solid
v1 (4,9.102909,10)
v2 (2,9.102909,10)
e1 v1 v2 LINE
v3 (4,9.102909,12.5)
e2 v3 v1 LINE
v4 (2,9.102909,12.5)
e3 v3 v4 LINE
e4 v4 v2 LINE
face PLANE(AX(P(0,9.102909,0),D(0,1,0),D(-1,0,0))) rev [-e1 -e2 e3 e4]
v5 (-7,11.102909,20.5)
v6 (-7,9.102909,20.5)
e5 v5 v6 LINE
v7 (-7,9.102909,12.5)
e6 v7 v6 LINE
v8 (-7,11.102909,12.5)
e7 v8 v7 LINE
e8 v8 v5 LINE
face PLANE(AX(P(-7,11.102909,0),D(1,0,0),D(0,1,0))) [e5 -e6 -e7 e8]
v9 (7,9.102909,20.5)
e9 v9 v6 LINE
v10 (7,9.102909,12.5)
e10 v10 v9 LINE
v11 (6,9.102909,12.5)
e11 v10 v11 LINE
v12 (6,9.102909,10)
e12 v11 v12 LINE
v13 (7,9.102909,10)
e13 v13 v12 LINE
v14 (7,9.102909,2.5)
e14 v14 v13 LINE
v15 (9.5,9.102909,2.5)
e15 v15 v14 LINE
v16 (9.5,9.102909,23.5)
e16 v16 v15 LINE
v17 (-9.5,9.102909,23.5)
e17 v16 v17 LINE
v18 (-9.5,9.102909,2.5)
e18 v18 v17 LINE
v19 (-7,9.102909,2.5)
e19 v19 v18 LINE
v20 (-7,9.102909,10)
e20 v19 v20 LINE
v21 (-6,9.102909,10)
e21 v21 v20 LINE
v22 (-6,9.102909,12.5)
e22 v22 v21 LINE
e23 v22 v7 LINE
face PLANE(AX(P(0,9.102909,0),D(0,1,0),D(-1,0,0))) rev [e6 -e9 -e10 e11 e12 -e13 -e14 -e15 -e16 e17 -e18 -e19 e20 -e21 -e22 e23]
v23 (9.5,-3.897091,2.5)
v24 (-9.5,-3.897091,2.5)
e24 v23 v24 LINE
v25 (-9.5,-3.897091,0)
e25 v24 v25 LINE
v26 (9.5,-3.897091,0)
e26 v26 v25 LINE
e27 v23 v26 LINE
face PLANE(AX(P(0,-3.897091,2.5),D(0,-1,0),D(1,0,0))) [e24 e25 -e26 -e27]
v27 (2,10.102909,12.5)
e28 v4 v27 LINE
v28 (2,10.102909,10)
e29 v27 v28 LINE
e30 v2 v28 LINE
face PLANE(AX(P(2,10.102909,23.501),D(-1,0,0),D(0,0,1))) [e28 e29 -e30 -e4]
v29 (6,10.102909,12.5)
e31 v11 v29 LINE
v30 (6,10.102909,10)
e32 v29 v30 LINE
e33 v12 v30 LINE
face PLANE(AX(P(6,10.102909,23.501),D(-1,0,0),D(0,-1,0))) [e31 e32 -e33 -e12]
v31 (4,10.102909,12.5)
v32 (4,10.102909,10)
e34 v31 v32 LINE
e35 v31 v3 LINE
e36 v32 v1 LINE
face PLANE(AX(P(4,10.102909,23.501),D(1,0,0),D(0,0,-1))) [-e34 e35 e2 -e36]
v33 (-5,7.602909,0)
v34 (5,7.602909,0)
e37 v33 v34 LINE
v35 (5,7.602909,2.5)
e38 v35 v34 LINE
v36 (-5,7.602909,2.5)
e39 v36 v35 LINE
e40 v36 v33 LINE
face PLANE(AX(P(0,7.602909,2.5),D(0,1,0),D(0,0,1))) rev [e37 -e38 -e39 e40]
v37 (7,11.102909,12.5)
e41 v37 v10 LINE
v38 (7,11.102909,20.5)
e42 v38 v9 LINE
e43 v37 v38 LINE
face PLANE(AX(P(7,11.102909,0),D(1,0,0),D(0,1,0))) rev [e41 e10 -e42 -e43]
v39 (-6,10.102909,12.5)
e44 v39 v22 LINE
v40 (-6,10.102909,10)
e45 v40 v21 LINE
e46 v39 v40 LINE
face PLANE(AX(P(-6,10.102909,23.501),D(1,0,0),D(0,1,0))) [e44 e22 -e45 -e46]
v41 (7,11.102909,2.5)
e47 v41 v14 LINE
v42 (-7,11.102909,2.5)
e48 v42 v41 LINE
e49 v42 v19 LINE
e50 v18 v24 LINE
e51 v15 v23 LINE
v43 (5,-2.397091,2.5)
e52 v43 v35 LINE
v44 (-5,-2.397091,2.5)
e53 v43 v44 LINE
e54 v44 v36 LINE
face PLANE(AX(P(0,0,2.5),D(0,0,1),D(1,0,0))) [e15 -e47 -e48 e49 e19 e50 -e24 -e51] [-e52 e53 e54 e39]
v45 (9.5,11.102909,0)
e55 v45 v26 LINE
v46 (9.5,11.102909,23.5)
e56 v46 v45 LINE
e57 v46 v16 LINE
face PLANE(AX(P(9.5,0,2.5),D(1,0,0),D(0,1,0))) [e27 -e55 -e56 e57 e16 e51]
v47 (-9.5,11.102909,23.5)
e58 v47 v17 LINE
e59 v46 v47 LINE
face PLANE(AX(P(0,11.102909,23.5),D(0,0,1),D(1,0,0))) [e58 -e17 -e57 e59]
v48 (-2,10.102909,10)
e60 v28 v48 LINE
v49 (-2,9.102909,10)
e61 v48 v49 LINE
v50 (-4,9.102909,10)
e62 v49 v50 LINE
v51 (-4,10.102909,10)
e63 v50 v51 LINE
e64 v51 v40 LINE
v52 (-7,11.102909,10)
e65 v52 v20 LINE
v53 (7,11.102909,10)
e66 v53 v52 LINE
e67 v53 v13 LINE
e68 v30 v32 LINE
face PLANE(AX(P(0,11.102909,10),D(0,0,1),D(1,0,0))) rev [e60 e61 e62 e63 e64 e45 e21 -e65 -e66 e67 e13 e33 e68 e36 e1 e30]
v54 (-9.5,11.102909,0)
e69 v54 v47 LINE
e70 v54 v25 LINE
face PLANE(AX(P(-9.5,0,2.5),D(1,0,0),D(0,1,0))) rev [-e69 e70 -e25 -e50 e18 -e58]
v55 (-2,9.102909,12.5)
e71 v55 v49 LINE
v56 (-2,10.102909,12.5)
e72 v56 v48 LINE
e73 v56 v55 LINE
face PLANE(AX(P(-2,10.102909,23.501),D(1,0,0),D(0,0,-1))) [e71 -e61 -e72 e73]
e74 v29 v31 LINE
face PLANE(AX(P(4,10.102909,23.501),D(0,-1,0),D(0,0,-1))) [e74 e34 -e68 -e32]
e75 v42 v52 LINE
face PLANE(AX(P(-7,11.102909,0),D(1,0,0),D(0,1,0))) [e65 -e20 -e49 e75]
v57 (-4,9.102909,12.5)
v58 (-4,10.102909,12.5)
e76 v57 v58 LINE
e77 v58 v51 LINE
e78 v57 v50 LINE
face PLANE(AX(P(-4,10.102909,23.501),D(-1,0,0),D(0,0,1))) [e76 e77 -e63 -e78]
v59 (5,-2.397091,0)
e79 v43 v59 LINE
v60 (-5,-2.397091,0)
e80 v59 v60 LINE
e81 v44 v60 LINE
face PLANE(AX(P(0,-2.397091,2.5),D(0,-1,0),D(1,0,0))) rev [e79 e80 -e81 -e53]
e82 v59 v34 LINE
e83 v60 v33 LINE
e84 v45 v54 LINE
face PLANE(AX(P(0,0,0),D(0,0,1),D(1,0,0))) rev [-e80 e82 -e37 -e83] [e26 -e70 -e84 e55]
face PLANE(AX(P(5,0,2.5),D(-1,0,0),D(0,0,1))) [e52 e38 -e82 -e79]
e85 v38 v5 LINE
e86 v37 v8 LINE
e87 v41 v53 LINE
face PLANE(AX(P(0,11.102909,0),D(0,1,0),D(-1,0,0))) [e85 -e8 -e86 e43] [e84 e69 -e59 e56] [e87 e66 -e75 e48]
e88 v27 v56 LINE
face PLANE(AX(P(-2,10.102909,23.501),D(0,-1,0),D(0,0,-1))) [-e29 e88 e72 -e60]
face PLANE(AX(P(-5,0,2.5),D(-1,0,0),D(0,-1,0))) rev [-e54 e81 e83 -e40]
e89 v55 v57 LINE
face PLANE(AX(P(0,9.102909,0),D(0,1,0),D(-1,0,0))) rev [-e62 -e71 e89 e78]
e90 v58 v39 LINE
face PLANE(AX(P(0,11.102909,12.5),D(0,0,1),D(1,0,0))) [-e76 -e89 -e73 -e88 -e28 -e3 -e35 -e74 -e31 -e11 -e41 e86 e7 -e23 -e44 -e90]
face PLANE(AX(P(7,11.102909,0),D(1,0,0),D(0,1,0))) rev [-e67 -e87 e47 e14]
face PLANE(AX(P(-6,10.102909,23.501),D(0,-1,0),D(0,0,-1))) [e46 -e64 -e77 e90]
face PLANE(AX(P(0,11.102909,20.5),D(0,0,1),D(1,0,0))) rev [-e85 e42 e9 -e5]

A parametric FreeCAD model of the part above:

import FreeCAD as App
import Part
import Sketcher
from FreeCAD import Vector

doc = App.newDocument("Part")
body = doc.addObject("PartDesign::Body", "Body")

# Sketch on XY plane
sketch1 = body.newObject("Sketcher::SketchObject", "Sketch")
sketch1.AttachmentSupport = (doc.getObject("XY_Plane"), [""])
sketch1.MapMode = "FlatFace"
sketch1.addGeometry(Part.LineSegment(Vector(-10, 9, 0), Vector(-10, -4, 0)), False)
sketch1.addGeometry(Part.LineSegment(Vector(-10, -4, 0), Vector(10, -4, 0)), False)
sketch1.addGeometry(Part.LineSegment(Vector(10, -4, 0), Vector(10, 9, 0)), False)
sketch1.addGeometry(Part.LineSegment(Vector(10, 9, 0), Vector(-10, 9, 0)), False)
sketch1.addGeometry(Part.LineSegment(Vector(5, -2, 0), Vector(-5, -2, 0)), False)
sketch1.addGeometry(Part.LineSegment(Vector(-5, -2, 0), Vector(-5, 8, 0)), False)
sketch1.addGeometry(Part.LineSegment(Vector(-5, 8, 0), Vector(5, 8, 0)), False)
sketch1.addGeometry(Part.LineSegment(Vector(5, 8, 0), Vector(5, -2, 0)), False)
sketch1.addConstraint(Sketcher.Constraint("Coincident", 0, 2, 1, 1))
sketch1.addConstraint(Sketcher.Constraint("Coincident", 1, 2, 2, 1))
sketch1.addConstraint(Sketcher.Constraint("Coincident", 2, 2, 3, 1))
sketch1.addConstraint(Sketcher.Constraint("Coincident", 3, 2, 0, 1))
sketch1.addConstraint(Sketcher.Constraint("Coincident", 4, 2, 5, 1))
sketch1.addConstraint(Sketcher.Constraint("Coincident", 5, 2, 6, 1))
sketch1.addConstraint(Sketcher.Constraint("Coincident", 6, 2, 7, 1))
sketch1.addConstraint(Sketcher.Constraint("Coincident", 7, 2, 4, 1))
sketch1.addConstraint(Sketcher.Constraint("Vertical", 0))
sketch1.addConstraint(Sketcher.Constraint("Horizontal", 1))
sketch1.addConstraint(Sketcher.Constraint("Vertical", 2))
sketch1.addConstraint(Sketcher.Constraint("Horizontal", 3))
sketch1.addConstraint(Sketcher.Constraint("Horizontal", 4))
sketch1.addConstraint(Sketcher.Constraint("Vertical", 5))
sketch1.addConstraint(Sketcher.Constraint("Horizontal", 6))
sketch1.addConstraint(Sketcher.Constraint("Vertical", 7))
sketch1.addConstraint(Sketcher.Constraint("Equal", 6, 5))
sketch1.addConstraint(Sketcher.Constraint("DistanceX", 1, 1, 1, 2, 19.0))
sketch1.addConstraint(Sketcher.Constraint("DistanceX", 4, 2, 4, 1, 10.0))
sketch1.addConstraint(Sketcher.Constraint("DistanceY", 0, 2, 0, 1, 13.0))
sketch1.addConstraint(Sketcher.Constraint("DistanceX", 4, 2, -1, 1, 5.0))
sketch1.addConstraint(Sketcher.Constraint("DistanceX", 0, 2, -1, 1, 9.5))
sketch1.addConstraint(Sketcher.Constraint("DistanceY", 0, 2, 4, 2, 1.5))
sketch1.addConstraint(Sketcher.Constraint("DistanceY", 0, 2, -1, 1, 3.897091))
pad1 = body.newObject("PartDesign::Pad", "Pad")
pad1.Profile = sketch1
pad1.Length = 2.5

# Sketch on XZ plane
sketch2 = body.newObject("Sketcher::SketchObject", "Sketch001")
sketch2.AttachmentSupport = (doc.getObject("XZ_Plane"), [""])
sketch2.MapMode = "FlatFace"
sketch2.AttachmentOffset = App.Placement(Vector(0, 0, -9.102909), App.Rotation())
sketch2.addGeometry(Part.LineSegment(Vector(10, 0, 0), Vector(-10, 0, 0)), False)
sketch2.addGeometry(Part.LineSegment(Vector(-10, 0, 0), Vector(-10, 24, 0)), False)
sketch2.addGeometry(Part.LineSegment(Vector(-10, 24, 0), Vector(10, 24, 0)), False)
sketch2.addGeometry(Part.LineSegment(Vector(10, 24, 0), Vector(10, 0, 0)), False)
sketch2.addGeometry(Part.LineSegment(Vector(-7, 20, 0), Vector(-7, 12, 0)), False)
sketch2.addGeometry(Part.LineSegment(Vector(-7, 12, 0), Vector(7, 12, 0)), False)
sketch2.addGeometry(Part.LineSegment(Vector(7, 12, 0), Vector(7, 20, 0)), False)
sketch2.addGeometry(Part.LineSegment(Vector(7, 20, 0), Vector(-7, 20, 0)), False)
sketch2.addGeometry(Part.LineSegment(Vector(-7, 10, 0), Vector(-7, 2, 0)), False)
sketch2.addGeometry(Part.LineSegment(Vector(-7, 2, 0), Vector(7, 2, 0)), False)
sketch2.addGeometry(Part.LineSegment(Vector(7, 2, 0), Vector(7, 10, 0)), False)
sketch2.addGeometry(Part.LineSegment(Vector(7, 10, 0), Vector(-7, 10, 0)), False)
sketch2.addConstraint(Sketcher.Constraint("Coincident", 0, 2, 1, 1))
sketch2.addConstraint(Sketcher.Constraint("Coincident", 1, 2, 2, 1))
sketch2.addConstraint(Sketcher.Constraint("Coincident", 2, 2, 3, 1))
sketch2.addConstraint(Sketcher.Constraint("Coincident", 3, 2, 0, 1))
sketch2.addConstraint(Sketcher.Constraint("Coincident", 4, 2, 5, 1))
sketch2.addConstraint(Sketcher.Constraint("Coincident", 5, 2, 6, 1))
sketch2.addConstraint(Sketcher.Constraint("Coincident", 6, 2, 7, 1))
sketch2.addConstraint(Sketcher.Constraint("Coincident", 7, 2, 4, 1))
sketch2.addConstraint(Sketcher.Constraint("Coincident", 8, 2, 9, 1))
sketch2.addConstraint(Sketcher.Constraint("Coincident", 9, 2, 10, 1))
sketch2.addConstraint(Sketcher.Constraint("Coincident", 10, 2, 11, 1))
sketch2.addConstraint(Sketcher.Constraint("Coincident", 11, 2, 8, 1))
sketch2.addConstraint(Sketcher.Constraint("Horizontal", 0))
sketch2.addConstraint(Sketcher.Constraint("Vertical", 1))
sketch2.addConstraint(Sketcher.Constraint("Horizontal", 2))
sketch2.addConstraint(Sketcher.Constraint("Vertical", 3))
sketch2.addConstraint(Sketcher.Constraint("Vertical", 4))
sketch2.addConstraint(Sketcher.Constraint("Horizontal", 5))
sketch2.addConstraint(Sketcher.Constraint("Vertical", 6))
sketch2.addConstraint(Sketcher.Constraint("Horizontal", 7))
sketch2.addConstraint(Sketcher.Constraint("Vertical", 8))
sketch2.addConstraint(Sketcher.Constraint("Horizontal", 9))
sketch2.addConstraint(Sketcher.Constraint("Vertical", 10))
sketch2.addConstraint(Sketcher.Constraint("Horizontal", 11))
sketch2.addConstraint(Sketcher.Constraint("Symmetric", 0, 2, 3, 2, -1, 1))
sketch2.addConstraint(Sketcher.Constraint("Vertical", 7, 2, 8, 2))
sketch2.addConstraint(Sketcher.Constraint("Vertical", 6, 2, 9, 2))
sketch2.addConstraint(Sketcher.Constraint("DistanceX", 0, 2, 0, 1, 19.0))
sketch2.addConstraint(Sketcher.Constraint("DistanceX", 5, 1, 5, 2, 14.0))
sketch2.addConstraint(Sketcher.Constraint("DistanceY", 4, 2, 4, 1, 8.0))
sketch2.addConstraint(Sketcher.Constraint("DistanceY", 1, 1, 1, 2, 23.5))
sketch2.addConstraint(Sketcher.Constraint("DistanceY", 8, 2, 8, 1, 7.5))
sketch2.addConstraint(Sketcher.Constraint("DistanceX", 4, 2, -1, 1, 7.0))
sketch2.addConstraint(Sketcher.Constraint("DistanceY", -1, 1, 10, 2, 10.0))
sketch2.addConstraint(Sketcher.Constraint("DistanceY", 4, 2, 1, 2, 11.0))
pad2 = body.newObject("PartDesign::Pad", "Pad001")
pad2.Profile = sketch2
pad2.Length = 2
pad2.Reversed = True

# Sketch on XY plane
sketch3 = body.newObject("Sketcher::SketchObject", "Sketch002")
sketch3.AttachmentSupport = (doc.getObject("XY_Plane"), [""])
sketch3.MapMode = "FlatFace"
sketch3.AttachmentOffset = App.Placement(Vector(0, 0, 2.5), App.Rotation())
sketch3.addGeometry(Part.LineSegment(Vector(-6, 10.1, 0), Vector(-6, 9.1, 0)), False)
sketch3.addGeometry(Part.LineSegment(Vector(-6, 9.1, 0), Vector(-4, 9.1, 0)), False)
sketch3.addGeometry(Part.LineSegment(Vector(-4, 9.1, 0), Vector(-4, 10.1, 0)), False)
sketch3.addGeometry(Part.LineSegment(Vector(-4, 10.1, 0), Vector(-6, 10.1, 0)), False)
sketch3.addConstraint(Sketcher.Constraint("Coincident", 0, 2, 1, 1))
sketch3.addConstraint(Sketcher.Constraint("Coincident", 1, 2, 2, 1))
sketch3.addConstraint(Sketcher.Constraint("Coincident", 2, 2, 3, 1))
sketch3.addConstraint(Sketcher.Constraint("Coincident", 3, 2, 0, 1))
sketch3.addConstraint(Sketcher.Constraint("Vertical", 0))
sketch3.addConstraint(Sketcher.Constraint("Horizontal", 1))
sketch3.addConstraint(Sketcher.Constraint("Vertical", 2))
sketch3.addConstraint(Sketcher.Constraint("Horizontal", 3))
sketch3.addConstraint(Sketcher.Constraint("DistanceX", 1, 1, 1, 2, 2.0))
sketch3.addConstraint(Sketcher.Constraint("DistanceY", 0, 2, 0, 1, 1.0))
sketch3.addConstraint(Sketcher.Constraint("DistanceX", 0, 2, -1, 1, 6.0))
sketch3.addConstraint(Sketcher.Constraint("DistanceY", -1, 1, 0, 2, 9.102909))
pocket1 = body.newObject("PartDesign::Pocket", "Pocket")
pocket1.Profile = sketch3
pocket1.Length = 10
pocket1.Reversed = True

# Sketch on XY plane
sketch4 = body.newObject("Sketcher::SketchObject", "Sketch003")
sketch4.AttachmentSupport = (doc.getObject("XY_Plane"), [""])
sketch4.MapMode = "FlatFace"
sketch4.AttachmentOffset = App.Placement(Vector(0, 0, 2.5), App.Rotation())
sketch4.addGeometry(Part.LineSegment(Vector(4, 10.1, 0), Vector(4, 9.1, 0)), False)
sketch4.addGeometry(Part.LineSegment(Vector(4, 9.1, 0), Vector(6, 9.1, 0)), False)
sketch4.addGeometry(Part.LineSegment(Vector(6, 9.1, 0), Vector(6, 10.1, 0)), False)
sketch4.addGeometry(Part.LineSegment(Vector(6, 10.1, 0), Vector(4, 10.1, 0)), False)
sketch4.addConstraint(Sketcher.Constraint("Coincident", 0, 2, 1, 1))
sketch4.addConstraint(Sketcher.Constraint("Coincident", 1, 2, 2, 1))
sketch4.addConstraint(Sketcher.Constraint("Coincident", 2, 2, 3, 1))
sketch4.addConstraint(Sketcher.Constraint("Coincident", 3, 2, 0, 1))
sketch4.addConstraint(Sketcher.Constraint("Vertical", 0))
sketch4.addConstraint(Sketcher.Constraint("Horizontal", 1))
sketch4.addConstraint(Sketcher.Constraint("Vertical", 2))
sketch4.addConstraint(Sketcher.Constraint("Horizontal", 3))
sketch4.addConstraint(Sketcher.Constraint("DistanceX", 1, 1, 1, 2, 2.0))
sketch4.addConstraint(Sketcher.Constraint("DistanceY", 0, 2, 0, 1, 1.0))
sketch4.addConstraint(Sketcher.Constraint("DistanceX", -1, 1, 0, 2, 4.0))
sketch4.addConstraint(Sketcher.Constraint("DistanceY", -1, 1, 0, 2, 9.102909))
pocket2 = body.newObject("PartDesign::Pocket", "Pocket001")
pocket2.Profile = sketch4
pocket2.Length = 10
pocket2.Reversed = True

# Sketch on XY plane
sketch5 = body.newObject("Sketcher::SketchObject", "Sketch004")
sketch5.AttachmentSupport = (doc.getObject("XY_Plane"), [""])
sketch5.MapMode = "FlatFace"
sketch5.AttachmentOffset = App.Placement(Vector(0, 0, 2.5), App.Rotation())
sketch5.addGeometry(Part.LineSegment(Vector(-2, 10.1, 0), Vector(-2, 9.1, 0)), False)
sketch5.addGeometry(Part.LineSegment(Vector(-2, 9.1, 0), Vector(2, 9.1, 0)), False)
sketch5.addGeometry(Part.LineSegment(Vector(2, 9.1, 0), Vector(2, 10.1, 0)), False)
sketch5.addGeometry(Part.LineSegment(Vector(2, 10.1, 0), Vector(-2, 10.1, 0)), False)
sketch5.addConstraint(Sketcher.Constraint("Coincident", 0, 2, 1, 1))
sketch5.addConstraint(Sketcher.Constraint("Coincident", 1, 2, 2, 1))
sketch5.addConstraint(Sketcher.Constraint("Coincident", 2, 2, 3, 1))
sketch5.addConstraint(Sketcher.Constraint("Coincident", 3, 2, 0, 1))
sketch5.addConstraint(Sketcher.Constraint("Vertical", 0))
sketch5.addConstraint(Sketcher.Constraint("Horizontal", 1))
sketch5.addConstraint(Sketcher.Constraint("Vertical", 2))
sketch5.addConstraint(Sketcher.Constraint("Horizontal", 3))
sketch5.addConstraint(Sketcher.Constraint("DistanceX", 1, 1, 1, 2, 4.0))
sketch5.addConstraint(Sketcher.Constraint("DistanceY", 0, 2, 0, 1, 1.0))
sketch5.addConstraint(Sketcher.Constraint("DistanceX", 0, 2, -1, 1, 2.0))
sketch5.addConstraint(Sketcher.Constraint("DistanceY", -1, 1, 0, 2, 9.102909))
pocket3 = body.newObject("PartDesign::Pocket", "Pocket002")
pocket3.Profile = sketch5
pocket3.Length = 10
pocket3.Reversed = True

doc.recompute()
